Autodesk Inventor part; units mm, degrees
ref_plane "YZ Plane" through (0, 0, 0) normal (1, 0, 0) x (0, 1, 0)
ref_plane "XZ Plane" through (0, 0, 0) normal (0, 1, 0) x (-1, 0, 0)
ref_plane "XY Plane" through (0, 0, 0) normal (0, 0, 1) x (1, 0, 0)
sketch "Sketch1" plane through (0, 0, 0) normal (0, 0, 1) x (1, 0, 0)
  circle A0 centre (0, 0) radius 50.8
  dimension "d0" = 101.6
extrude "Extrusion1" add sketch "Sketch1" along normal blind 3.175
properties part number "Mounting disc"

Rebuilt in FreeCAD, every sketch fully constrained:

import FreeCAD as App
import Part
import Sketcher

V = App.Vector
Q = App.Units.Quantity

doc = App.newDocument("Part")
body = doc.addObject("PartDesign::Body", "Body")

sketch1 = body.newObject("Sketcher::SketchObject", "Sketch")
sketch1.AttachmentSupport = (doc.getObject("XY_Plane"), [""])
sketch1.MapMode = "FlatFace"
sketch1.addGeometry(Part.Circle(V(0, 0, 0), V(0, 0, 1), 51), False)
sketch1.addConstraint(Sketcher.Constraint("Coincident", 0, 3, -1, 1))
sketch1.addConstraint(Sketcher.Constraint("Diameter", 0, Q("4 in")))
pad1 = body.newObject("PartDesign::Pad", "Pad")
pad1.Profile = sketch1
pad1.Length = Q("0.125 in")

doc.recompute()
